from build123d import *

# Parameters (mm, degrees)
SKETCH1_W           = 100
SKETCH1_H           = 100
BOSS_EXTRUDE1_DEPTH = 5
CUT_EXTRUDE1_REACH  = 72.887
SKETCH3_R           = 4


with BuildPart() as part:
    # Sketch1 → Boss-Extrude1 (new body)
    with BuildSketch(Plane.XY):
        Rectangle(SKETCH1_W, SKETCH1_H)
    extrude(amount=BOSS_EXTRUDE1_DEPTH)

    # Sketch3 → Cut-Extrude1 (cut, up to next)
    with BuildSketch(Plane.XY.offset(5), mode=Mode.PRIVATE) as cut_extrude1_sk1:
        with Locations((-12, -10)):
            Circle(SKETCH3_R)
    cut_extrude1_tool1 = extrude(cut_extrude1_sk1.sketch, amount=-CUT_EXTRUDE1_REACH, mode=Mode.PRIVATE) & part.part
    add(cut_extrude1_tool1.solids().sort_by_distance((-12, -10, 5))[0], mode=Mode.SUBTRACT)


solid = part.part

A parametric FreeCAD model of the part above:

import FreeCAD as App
import Part
import Sketcher

V = App.Vector


def add_polygon(sketch, points):
    """Adds a closed chain of lines whose ends are joined by coincident constraints."""
    first, n = sketch.GeometryCount, len(points)
    for a, b in zip(points, points[1:] + points[:1]):
        sketch.addGeometry(Part.LineSegment(App.Vector(*a, 0), App.Vector(*b, 0)), False)
    for i in range(n):
        sketch.addConstraint(Sketcher.Constraint("Coincident", first + i, 2, first + (i + 1) % n, 1))

doc = App.newDocument("Part")
body = doc.addObject("PartDesign::Body", "Body")

# Sketch on XY plane
sketch1 = doc.addObject("Sketcher::SketchObject", "Sketch")
body.addObject(sketch1)
sketch1.AttachmentSupport = (doc.XY_Plane, [""])
sketch1.MapMode = "FlatFace"
add_polygon(sketch1, [(-50, 50), (-50, -50), (50, -50), (50, 50)])  # lines 0-3
sketch1.addConstraint([
    Sketcher.Constraint("Vertical", 0),
    Sketcher.Constraint("Horizontal", 1),
    Sketcher.Constraint("Vertical", 2),
    Sketcher.Constraint("Horizontal", 3),
    Sketcher.Constraint("Symmetric", 0, 2, 2, 2, -1, 1),
    Sketcher.Constraint("Equal", 3, 0),
    Sketcher.Constraint("DistanceX", 1, 1, 1, 2, 100.0),
])
pad1 = doc.addObject("PartDesign::Pad", "Pad")
body.addObject(pad1)
pad1.Profile = sketch1
pad1.Length = 5

# Sketch on XY plane
sketch2 = doc.addObject("Sketcher::SketchObject", "Sketch001")
body.addObject(sketch2)
sketch2.AttachmentSupport = (doc.XY_Plane, [""])
sketch2.MapMode = "FlatFace"
sketch2.AttachmentOffset = App.Placement(V(0, 0, 5), App.Rotation())
sketch2.addGeometry(Part.Circle(V(-12, -10, 0), V(0, 0, 1), 4), False)
sketch2.addConstraint([
    Sketcher.Constraint("Diameter", 0, 8.0),
    Sketcher.Constraint("DistanceX", 0, 3, -1, 1, 12.0),
    Sketcher.Constraint("DistanceY", 0, 3, -1, 1, 10.0),
])
pocket1 = doc.addObject("PartDesign::Pocket", "Pocket")
body.addObject(pocket1)
pocket1.Profile = sketch2
pocket1.Type = "UpToFirst"

doc.recompute()
